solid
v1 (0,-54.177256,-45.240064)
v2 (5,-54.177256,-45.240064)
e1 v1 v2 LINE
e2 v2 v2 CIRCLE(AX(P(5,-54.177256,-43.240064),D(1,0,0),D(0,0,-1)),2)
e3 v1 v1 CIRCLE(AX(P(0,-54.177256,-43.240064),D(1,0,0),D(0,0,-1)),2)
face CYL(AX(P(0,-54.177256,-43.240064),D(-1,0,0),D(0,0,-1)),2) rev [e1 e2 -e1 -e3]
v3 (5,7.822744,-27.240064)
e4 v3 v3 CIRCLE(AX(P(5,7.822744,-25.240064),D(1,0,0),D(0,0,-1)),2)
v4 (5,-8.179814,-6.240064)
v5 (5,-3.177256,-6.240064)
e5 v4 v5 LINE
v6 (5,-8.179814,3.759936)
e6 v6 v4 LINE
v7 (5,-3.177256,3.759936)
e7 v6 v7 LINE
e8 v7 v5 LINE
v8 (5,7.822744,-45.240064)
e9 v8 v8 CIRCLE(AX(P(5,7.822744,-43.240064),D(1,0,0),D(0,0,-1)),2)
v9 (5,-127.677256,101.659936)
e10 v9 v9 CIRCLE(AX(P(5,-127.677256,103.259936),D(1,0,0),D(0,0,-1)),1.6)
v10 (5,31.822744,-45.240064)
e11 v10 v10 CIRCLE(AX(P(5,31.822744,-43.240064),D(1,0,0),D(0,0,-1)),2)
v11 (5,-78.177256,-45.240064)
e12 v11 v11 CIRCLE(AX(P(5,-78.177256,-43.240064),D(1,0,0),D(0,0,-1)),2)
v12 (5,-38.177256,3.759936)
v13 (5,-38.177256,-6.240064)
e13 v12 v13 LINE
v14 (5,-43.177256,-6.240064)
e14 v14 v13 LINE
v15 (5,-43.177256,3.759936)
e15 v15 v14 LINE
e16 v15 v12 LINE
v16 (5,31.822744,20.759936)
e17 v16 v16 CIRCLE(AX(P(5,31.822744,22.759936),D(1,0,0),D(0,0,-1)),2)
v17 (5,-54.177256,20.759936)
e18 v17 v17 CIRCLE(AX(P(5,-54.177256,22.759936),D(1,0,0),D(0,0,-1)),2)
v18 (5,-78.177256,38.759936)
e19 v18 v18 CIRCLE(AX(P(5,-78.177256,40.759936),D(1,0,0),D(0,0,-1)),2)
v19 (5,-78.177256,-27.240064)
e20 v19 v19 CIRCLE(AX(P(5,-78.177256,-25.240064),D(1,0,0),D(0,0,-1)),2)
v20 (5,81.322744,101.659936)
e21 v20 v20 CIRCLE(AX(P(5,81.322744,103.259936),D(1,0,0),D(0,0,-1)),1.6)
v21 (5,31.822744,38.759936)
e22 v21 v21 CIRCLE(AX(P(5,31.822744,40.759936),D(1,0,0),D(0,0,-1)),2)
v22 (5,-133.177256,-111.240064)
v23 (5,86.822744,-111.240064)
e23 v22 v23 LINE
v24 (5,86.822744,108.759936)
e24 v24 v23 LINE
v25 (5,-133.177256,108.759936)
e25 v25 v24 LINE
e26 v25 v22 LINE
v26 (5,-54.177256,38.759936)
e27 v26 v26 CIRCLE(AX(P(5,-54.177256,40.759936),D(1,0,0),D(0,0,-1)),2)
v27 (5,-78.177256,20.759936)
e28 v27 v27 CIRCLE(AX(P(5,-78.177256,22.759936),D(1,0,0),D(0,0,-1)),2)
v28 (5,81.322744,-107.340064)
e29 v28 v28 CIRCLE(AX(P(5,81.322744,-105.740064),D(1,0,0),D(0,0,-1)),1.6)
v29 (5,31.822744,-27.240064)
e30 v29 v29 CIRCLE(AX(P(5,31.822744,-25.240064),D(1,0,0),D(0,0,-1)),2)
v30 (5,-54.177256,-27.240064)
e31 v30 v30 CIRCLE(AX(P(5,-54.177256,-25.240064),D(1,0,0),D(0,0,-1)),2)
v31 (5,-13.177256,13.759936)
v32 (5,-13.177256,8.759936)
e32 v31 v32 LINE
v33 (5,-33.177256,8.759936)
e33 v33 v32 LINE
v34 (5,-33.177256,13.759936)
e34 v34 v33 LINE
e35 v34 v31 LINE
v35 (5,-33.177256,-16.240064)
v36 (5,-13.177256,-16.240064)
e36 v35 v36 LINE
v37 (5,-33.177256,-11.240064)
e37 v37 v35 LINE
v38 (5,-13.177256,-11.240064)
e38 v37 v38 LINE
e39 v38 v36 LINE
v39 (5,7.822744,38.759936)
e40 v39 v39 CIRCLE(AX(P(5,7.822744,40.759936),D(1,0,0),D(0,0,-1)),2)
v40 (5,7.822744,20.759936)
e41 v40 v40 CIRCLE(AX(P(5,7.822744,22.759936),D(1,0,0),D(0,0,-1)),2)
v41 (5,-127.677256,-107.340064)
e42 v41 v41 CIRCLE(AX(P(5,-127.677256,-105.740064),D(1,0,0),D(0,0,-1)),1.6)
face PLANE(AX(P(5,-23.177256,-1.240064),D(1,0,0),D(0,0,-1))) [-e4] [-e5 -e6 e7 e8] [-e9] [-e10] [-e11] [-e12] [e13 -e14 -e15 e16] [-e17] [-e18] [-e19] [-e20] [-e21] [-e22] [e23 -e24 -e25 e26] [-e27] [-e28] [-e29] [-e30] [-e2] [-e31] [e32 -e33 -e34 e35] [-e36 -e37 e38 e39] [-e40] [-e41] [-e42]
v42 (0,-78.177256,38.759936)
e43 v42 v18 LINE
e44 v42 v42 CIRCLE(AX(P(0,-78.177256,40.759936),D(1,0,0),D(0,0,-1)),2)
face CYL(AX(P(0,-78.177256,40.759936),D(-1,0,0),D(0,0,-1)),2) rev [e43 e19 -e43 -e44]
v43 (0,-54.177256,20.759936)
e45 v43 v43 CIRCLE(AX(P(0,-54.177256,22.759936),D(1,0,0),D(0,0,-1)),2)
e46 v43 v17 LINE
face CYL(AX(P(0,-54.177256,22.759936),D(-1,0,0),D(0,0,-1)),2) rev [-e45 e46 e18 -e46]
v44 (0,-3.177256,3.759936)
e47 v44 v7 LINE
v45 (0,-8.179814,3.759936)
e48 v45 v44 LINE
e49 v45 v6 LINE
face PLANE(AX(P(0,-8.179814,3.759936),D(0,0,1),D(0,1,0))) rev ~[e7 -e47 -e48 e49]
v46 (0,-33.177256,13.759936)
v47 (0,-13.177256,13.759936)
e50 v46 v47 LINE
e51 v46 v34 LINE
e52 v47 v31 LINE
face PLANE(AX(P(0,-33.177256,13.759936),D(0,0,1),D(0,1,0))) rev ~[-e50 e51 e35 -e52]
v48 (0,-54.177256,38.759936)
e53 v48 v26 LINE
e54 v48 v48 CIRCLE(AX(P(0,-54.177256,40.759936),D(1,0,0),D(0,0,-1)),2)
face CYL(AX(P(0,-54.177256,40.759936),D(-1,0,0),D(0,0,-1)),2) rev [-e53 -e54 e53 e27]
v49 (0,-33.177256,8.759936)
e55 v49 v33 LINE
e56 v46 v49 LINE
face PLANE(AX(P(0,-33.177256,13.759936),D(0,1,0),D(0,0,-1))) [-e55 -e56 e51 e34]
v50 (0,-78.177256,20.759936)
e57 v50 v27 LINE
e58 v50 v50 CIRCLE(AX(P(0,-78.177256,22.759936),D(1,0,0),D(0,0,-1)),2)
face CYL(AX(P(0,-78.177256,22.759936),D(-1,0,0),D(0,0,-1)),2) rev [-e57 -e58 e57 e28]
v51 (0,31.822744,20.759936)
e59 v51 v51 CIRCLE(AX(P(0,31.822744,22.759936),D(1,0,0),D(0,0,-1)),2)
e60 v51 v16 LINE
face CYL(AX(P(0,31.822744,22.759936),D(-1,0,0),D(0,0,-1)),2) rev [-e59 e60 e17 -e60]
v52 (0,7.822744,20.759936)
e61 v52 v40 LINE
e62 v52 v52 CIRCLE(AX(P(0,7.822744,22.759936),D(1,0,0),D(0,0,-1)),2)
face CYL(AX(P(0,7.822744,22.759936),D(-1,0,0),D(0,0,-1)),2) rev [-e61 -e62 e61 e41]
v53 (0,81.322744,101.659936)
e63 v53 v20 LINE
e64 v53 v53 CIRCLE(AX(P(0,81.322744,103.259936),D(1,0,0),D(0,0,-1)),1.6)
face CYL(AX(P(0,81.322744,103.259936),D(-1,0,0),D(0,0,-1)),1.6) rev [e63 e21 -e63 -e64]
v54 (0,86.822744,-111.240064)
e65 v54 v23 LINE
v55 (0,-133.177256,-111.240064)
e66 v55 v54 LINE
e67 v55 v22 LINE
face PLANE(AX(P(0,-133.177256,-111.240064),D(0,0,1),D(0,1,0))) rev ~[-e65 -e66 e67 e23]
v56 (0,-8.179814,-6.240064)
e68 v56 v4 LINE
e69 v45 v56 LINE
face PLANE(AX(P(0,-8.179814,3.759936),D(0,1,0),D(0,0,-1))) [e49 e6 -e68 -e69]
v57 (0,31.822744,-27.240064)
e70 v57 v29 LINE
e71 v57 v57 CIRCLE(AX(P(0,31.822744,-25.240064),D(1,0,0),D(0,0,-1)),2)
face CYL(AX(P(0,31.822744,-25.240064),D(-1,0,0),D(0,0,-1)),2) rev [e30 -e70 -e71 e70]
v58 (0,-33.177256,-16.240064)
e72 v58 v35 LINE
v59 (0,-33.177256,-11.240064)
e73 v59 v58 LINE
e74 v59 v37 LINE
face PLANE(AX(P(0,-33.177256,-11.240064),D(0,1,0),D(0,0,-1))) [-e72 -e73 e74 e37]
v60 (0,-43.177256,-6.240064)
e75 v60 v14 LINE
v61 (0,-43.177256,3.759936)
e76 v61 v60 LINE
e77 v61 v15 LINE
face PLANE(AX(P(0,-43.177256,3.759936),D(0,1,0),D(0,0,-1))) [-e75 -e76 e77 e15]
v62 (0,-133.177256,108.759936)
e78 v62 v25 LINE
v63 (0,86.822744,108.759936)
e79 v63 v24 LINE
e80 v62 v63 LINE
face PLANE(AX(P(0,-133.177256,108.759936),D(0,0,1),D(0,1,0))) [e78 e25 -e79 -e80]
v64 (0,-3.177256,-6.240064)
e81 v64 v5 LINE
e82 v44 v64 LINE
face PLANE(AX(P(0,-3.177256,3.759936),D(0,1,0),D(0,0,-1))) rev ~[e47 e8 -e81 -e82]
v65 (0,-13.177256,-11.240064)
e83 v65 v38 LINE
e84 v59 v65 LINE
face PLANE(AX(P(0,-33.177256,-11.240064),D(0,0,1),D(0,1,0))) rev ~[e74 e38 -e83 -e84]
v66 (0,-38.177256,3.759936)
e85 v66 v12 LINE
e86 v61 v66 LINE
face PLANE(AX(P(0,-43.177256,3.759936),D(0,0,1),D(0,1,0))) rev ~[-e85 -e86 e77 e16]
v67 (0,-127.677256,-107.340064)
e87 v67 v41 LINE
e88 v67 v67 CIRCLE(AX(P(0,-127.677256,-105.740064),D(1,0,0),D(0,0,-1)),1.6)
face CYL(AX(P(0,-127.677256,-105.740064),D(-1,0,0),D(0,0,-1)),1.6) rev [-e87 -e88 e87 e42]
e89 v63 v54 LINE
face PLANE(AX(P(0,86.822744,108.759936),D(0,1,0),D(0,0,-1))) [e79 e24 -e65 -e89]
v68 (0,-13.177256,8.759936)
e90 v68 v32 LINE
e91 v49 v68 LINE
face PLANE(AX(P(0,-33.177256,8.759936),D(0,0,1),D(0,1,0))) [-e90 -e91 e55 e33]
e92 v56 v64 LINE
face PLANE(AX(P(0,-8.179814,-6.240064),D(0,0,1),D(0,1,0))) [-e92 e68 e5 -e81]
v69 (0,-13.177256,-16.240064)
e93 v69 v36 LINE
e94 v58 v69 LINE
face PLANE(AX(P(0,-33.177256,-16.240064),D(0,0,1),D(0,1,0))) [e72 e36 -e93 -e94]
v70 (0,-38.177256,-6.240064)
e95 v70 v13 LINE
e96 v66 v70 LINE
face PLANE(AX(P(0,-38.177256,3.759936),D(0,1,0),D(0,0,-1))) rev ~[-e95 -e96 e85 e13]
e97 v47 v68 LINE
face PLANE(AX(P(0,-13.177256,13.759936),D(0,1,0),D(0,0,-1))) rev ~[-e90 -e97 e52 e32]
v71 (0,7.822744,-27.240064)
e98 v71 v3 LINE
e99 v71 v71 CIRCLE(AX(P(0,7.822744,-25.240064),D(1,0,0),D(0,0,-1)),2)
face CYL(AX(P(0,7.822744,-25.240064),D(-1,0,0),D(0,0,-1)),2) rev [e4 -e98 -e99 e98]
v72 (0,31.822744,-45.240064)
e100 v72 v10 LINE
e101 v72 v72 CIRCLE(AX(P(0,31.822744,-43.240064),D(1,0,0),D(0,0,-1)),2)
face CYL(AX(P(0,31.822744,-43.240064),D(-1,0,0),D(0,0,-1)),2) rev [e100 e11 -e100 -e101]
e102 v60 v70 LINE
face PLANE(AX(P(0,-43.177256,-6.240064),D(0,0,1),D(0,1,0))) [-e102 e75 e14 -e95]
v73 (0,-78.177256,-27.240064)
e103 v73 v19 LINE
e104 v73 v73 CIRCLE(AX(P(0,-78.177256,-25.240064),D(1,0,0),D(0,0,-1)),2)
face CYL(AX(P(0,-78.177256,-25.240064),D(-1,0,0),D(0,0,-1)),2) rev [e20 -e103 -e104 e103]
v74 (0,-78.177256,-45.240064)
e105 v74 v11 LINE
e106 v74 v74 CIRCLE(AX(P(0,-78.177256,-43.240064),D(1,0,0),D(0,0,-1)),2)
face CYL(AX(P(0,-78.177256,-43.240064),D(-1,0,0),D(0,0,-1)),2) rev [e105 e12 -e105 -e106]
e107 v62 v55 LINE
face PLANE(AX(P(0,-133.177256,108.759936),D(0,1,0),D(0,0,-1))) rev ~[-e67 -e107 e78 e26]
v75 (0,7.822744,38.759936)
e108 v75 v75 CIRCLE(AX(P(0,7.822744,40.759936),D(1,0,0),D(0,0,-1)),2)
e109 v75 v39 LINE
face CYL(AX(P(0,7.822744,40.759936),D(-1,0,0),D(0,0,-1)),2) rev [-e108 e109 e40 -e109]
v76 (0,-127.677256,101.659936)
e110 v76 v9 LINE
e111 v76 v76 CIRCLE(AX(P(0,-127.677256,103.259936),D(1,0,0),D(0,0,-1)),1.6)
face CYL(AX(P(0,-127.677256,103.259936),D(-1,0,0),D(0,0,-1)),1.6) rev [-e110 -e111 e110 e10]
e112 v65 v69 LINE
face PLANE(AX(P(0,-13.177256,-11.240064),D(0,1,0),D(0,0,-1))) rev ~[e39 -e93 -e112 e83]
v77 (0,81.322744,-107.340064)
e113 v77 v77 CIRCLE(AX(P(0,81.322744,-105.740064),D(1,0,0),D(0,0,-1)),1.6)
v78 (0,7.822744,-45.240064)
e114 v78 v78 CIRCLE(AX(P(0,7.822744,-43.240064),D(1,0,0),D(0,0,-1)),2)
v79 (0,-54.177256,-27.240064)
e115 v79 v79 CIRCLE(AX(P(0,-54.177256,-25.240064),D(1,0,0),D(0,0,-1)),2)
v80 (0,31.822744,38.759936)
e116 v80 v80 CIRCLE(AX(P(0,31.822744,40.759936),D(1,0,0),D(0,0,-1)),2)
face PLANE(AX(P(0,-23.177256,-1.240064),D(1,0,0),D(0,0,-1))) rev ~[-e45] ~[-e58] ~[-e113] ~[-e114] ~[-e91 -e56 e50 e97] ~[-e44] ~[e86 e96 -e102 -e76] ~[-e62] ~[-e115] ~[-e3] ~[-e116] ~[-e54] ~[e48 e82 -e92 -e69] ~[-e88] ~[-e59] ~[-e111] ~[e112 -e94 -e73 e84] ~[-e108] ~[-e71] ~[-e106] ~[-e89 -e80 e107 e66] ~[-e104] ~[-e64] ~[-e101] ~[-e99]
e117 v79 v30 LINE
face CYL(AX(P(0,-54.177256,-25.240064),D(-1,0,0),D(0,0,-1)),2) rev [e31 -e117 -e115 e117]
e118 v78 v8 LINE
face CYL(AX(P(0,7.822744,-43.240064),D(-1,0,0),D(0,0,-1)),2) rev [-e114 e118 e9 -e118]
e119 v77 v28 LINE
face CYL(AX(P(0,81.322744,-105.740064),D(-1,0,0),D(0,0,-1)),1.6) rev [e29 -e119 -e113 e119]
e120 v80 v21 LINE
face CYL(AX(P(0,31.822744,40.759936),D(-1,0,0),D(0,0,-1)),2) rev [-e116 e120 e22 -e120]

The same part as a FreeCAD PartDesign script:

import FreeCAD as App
import Part
import Sketcher

V = App.Vector

doc = App.newDocument("Part")
body = doc.addObject("PartDesign::Body", "Body")

sketch1 = body.newObject("Sketcher::SketchObject", "Sketch")
sketch1.AttachmentSupport = (doc.getObject("YZ_Plane"), [""])
sketch1.MapMode = "FlatFace"
sketch1.addGeometry([
    Part.LineSegment(V(86.8, 108.8, 0), V(-133.2, 108.8, 0)),
    Part.LineSegment(V(-133.2, 108.8, 0), V(-133.2, -111.2, 0)),
    Part.LineSegment(V(-133.2, -111.2, 0), V(86.8, -111.2, 0)),
    Part.LineSegment(V(86.8, -111.2, 0), V(86.8, 108.8, 0)),
    Part.Circle(V(-127.7, 103.3, 0), V(0, 0, 1), 1.6),
    Part.Circle(V(-78.2, 40.8, 0), V(0, 0, 1), 2),
    Part.Circle(V(-78.2, 22.8, 0), V(0, 0, 1), 2),
    Part.Circle(V(-54.2, 40.8, 0), V(0, 0, 1), 2),
    Part.Circle(V(-54.2, 22.8, 0), V(0, 0, 1), 2),
    Part.Circle(V(-78.2, -25.2, 0), V(0, 0, 1), 2),
    Part.Circle(V(-78.2, -43.2, 0), V(0, 0, 1), 2),
    Part.Circle(V(-127.7, -105.7, 0), V(0, 0, 1), 1.6),
    Part.Circle(V(-54.2, -25.2, 0), V(0, 0, 1), 2),
    Part.Circle(V(-54.2, -43.2, 0), V(0, 0, 1), 2),
    Part.LineSegment(V(-43.2, -6.2, 0), V(-43.2, 3.8, 0)),
    Part.LineSegment(V(-43.2, 3.8, 0), V(-38.2, 3.8, 0)),
    Part.LineSegment(V(-38.2, 3.8, 0), V(-38.2, -6.2, 0)),
    Part.LineSegment(V(-38.2, -6.2, 0), V(-43.2, -6.2, 0)),
    Part.LineSegment(V(-33.2, 8.8, 0), V(-33.2, 13.8, 0)),
    Part.LineSegment(V(-33.2, 13.8, 0), V(-13.2, 13.8, 0)),
    Part.LineSegment(V(-13.2, 13.8, 0), V(-13.2, 8.8, 0)),
    Part.LineSegment(V(-13.2, 8.8, 0), V(-33.2, 8.8, 0)),
    Part.Circle(V(7.8, 40.8, 0), V(0, 0, 1), 2),
    Part.Circle(V(7.8, 22.8, 0), V(0, 0, 1), 2),
    Part.Circle(V(81.3, 103.3, 0), V(0, 0, 1), 1.6),
    Part.Circle(V(31.8, 40.8, 0), V(0, 0, 1), 2),
    Part.Circle(V(31.8, 22.8, 0), V(0, 0, 1), 2),
    Part.LineSegment(V(-33.2, -16.2, 0), V(-33.2, -11.2, 0)),
    Part.LineSegment(V(-33.2, -11.2, 0), V(-13.2, -11.2, 0)),
    Part.LineSegment(V(-13.2, -11.2, 0), V(-13.2, -16.2, 0)),
    Part.LineSegment(V(-13.2, -16.2, 0), V(-33.2, -16.2, 0)),
    Part.LineSegment(V(-8.2, -6.2, 0), V(-8.2, 3.8, 0)),
    Part.LineSegment(V(-8.2, 3.8, 0), V(-3.2, 3.8, 0)),
    Part.LineSegment(V(-3.2, 3.8, 0), V(-3.2, -6.2, 0)),
    Part.LineSegment(V(-3.2, -6.2, 0), V(-8.2, -6.2, 0)),
    Part.Circle(V(7.8, -25.2, 0), V(0, 0, 1), 2),
    Part.Circle(V(7.8, -43.2, 0), V(0, 0, 1), 2),
    Part.Circle(V(31.8, -25.2, 0), V(0, 0, 1), 2),
    Part.Circle(V(31.8, -43.2, 0), V(0, 0, 1), 2),
    Part.Circle(V(81.3, -105.7, 0), V(0, 0, 1), 1.6),
], False)
sketch1.addConstraint([
    Sketcher.Constraint("Coincident", 0, 2, 1, 1),
    Sketcher.Constraint("Coincident", 1, 2, 2, 1),
    Sketcher.Constraint("Coincident", 2, 2, 3, 1),
    Sketcher.Constraint("Coincident", 3, 2, 0, 1),
    Sketcher.Constraint("Coincident", 14, 2, 15, 1),
    Sketcher.Constraint("Coincident", 15, 2, 16, 1),
    Sketcher.Constraint("Coincident", 16, 2, 17, 1),
    Sketcher.Constraint("Coincident", 17, 2, 14, 1),
    Sketcher.Constraint("Coincident", 18, 2, 19, 1),
    Sketcher.Constraint("Coincident", 19, 2, 20, 1),
    Sketcher.Constraint("Coincident", 20, 2, 21, 1),
    Sketcher.Constraint("Coincident", 21, 2, 18, 1),
    Sketcher.Constraint("Coincident", 27, 2, 28, 1),
    Sketcher.Constraint("Coincident", 28, 2, 29, 1),
    Sketcher.Constraint("Coincident", 29, 2, 30, 1),
    Sketcher.Constraint("Coincident", 30, 2, 27, 1),
    Sketcher.Constraint("Coincident", 31, 2, 32, 1),
    Sketcher.Constraint("Coincident", 32, 2, 33, 1),
    Sketcher.Constraint("Coincident", 33, 2, 34, 1),
    Sketcher.Constraint("Coincident", 34, 2, 31, 1),
    Sketcher.Constraint("Horizontal", 0),
    Sketcher.Constraint("Vertical", 1),
    Sketcher.Constraint("Horizontal", 2),
    Sketcher.Constraint("Vertical", 3),
    Sketcher.Constraint("Vertical", 14),
    Sketcher.Constraint("Horizontal", 15),
    Sketcher.Constraint("Vertical", 16),
    Sketcher.Constraint("Horizontal", 17),
    Sketcher.Constraint("Vertical", 18),
    Sketcher.Constraint("Horizontal", 19),
    Sketcher.Constraint("Vertical", 20),
    Sketcher.Constraint("Horizontal", 21),
    Sketcher.Constraint("Vertical", 27),
    Sketcher.Constraint("Horizontal", 28),
    Sketcher.Constraint("Vertical", 29),
    Sketcher.Constraint("Horizontal", 30),
    Sketcher.Constraint("Vertical", 31),
    Sketcher.Constraint("Horizontal", 32),
    Sketcher.Constraint("Vertical", 33),
    Sketcher.Constraint("Horizontal", 34),
    Sketcher.Constraint("Equal", 5, 6),
    Sketcher.Constraint("Equal", 6, 7),
    Sketcher.Constraint("Equal", 7, 8),
    Sketcher.Constraint("Equal", 8, 9),
    Sketcher.Constraint("Equal", 9, 10),
    Sketcher.Constraint("Equal", 4, 11),
    Sketcher.Constraint("Equal", 10, 12),
    Sketcher.Constraint("Equal", 12, 13),
    Sketcher.Constraint("Equal", 13, 22),
    Sketcher.Constraint("Equal", 22, 23),
    Sketcher.Constraint("Equal", 11, 24),
    Sketcher.Constraint("Equal", 23, 25),
    Sketcher.Constraint("Equal", 25, 26),
    Sketcher.Constraint("Equal", 26, 35),
    Sketcher.Constraint("Equal", 35, 36),
    Sketcher.Constraint("Equal", 36, 37),
    Sketcher.Constraint("Equal", 37, 38),
    Sketcher.Constraint("Equal", 24, 39),
    Sketcher.Constraint("Horizontal", 5, 3, 7, 3),
    Sketcher.Constraint("Horizontal", 6, 3, 8, 3),
    Sketcher.Constraint("Horizontal", 9, 3, 12, 3),
    Sketcher.Constraint("Horizontal", 10, 3, 13, 3),
    Sketcher.Constraint("Horizontal", 7, 3, 22, 3),
    Sketcher.Constraint("Horizontal", 8, 3, 23, 3),
    Sketcher.Constraint("Horizontal", 4, 3, 24, 3),
    Sketcher.Constraint("Horizontal", 22, 3, 25, 3),
    Sketcher.Constraint("Horizontal", 23, 3, 26, 3),
    Sketcher.Constraint("Horizontal", 12, 3, 35, 3),
    Sketcher.Constraint("Horizontal", 13, 3, 36, 3),
    Sketcher.Constraint("Horizontal", 35, 3, 37, 3),
    Sketcher.Constraint("Horizontal", 36, 3, 38, 3),
    Sketcher.Constraint("Horizontal", 11, 3, 39, 3),
    Sketcher.Constraint("Horizontal", 15, 2, 31, 2),
    Sketcher.Constraint("Horizontal", 17, 2, 33, 2),
    Sketcher.Constraint("Vertical", 5, 3, 6, 3),
    Sketcher.Constraint("Vertical", 7, 3, 8, 3),
    Sketcher.Constraint("Vertical", 6, 3, 9, 3),
    Sketcher.Constraint("Vertical", 9, 3, 10, 3),
    Sketcher.Constraint("Vertical", 4, 3, 11, 3),
    Sketcher.Constraint("Vertical", 8, 3, 12, 3),
    Sketcher.Constraint("Vertical", 12, 3, 13, 3),
    Sketcher.Constraint("Vertical", 22, 3, 23, 3),
    Sketcher.Constraint("Vertical", 25, 3, 26, 3),
    Sketcher.Constraint("Vertical", 23, 3, 35, 3),
    Sketcher.Constraint("Vertical", 35, 3, 36, 3),
    Sketcher.Constraint("Vertical", 26, 3, 37, 3),
    Sketcher.Constraint("Vertical", 37, 3, 38, 3),
    Sketcher.Constraint("Vertical", 24, 3, 39, 3),
    Sketcher.Constraint("Vertical", 21, 2, 27, 2),
    Sketcher.Constraint("Vertical", 20, 2, 28, 2),
    Sketcher.Constraint("Equal", 2, 1),
    Sketcher.Constraint("Equal", 17, 18),
    Sketcher.Constraint("Equal", 20, 27),
    Sketcher.Constraint("Diameter", 5, 4.0),
    Sketcher.Constraint("Diameter", 4, 3.2),
    Sketcher.Constraint("DistanceX", 0, 2, 0, 1, 220.0),
    Sketcher.Constraint("DistanceX", 15, 1, 15, 2, 5.0),
    Sketcher.Constraint("DistanceX", 19, 1, 19, 2, 20.0),
    Sketcher.Constraint("DistanceY", 14, 1, 14, 2, 10.0),
    Sketcher.Constraint("DistanceY", 6, 3, 5, 3, 18.0),
    Sketcher.Constraint("DistanceX", 5, 3, 7, 3, 24.0),
    Sketcher.Constraint("DistanceY", 9, 3, 6, 3, 48.0),
    Sketcher.Constraint("DistanceY", 10, 3, 9, 3, 18.0),
    Sketcher.Constraint("DistanceX", 7, 3, 22, 3, 62.0),
    Sketcher.Constraint("DistanceX", 22, 3, 25, 3, 24.0),
    Sketcher.Constraint("DistanceX", 0, 2, 5, 3, 55.0),
    Sketcher.Constraint("DistanceY", 5, 3, 0, 2, 68.0),
    Sketcher.Constraint("DistanceX", 8, 3, 14, 2, 11.0),
    Sketcher.Constraint("DistanceY", 14, 2, 8, 3, 19.0),
    Sketcher.Constraint("DistanceX", 15, 2, 18, 2, 5.0),
    Sketcher.Constraint("DistanceY", 15, 2, 18, 2, 10.0),
    Sketcher.Constraint("DistanceY", 27, 2, 16, 2, 5.0),
    Sketcher.Constraint("DistanceX", 20, 2, 32, 2, 10.0),
    Sketcher.Constraint("DistanceX", 4, 3, 5, 3, 49.5),
    Sketcher.Constraint("DistanceY", 5, 3, 4, 3, 62.5),
    Sketcher.Constraint("DistanceY", 11, 3, 10, 3, 62.5),
    Sketcher.Constraint("DistanceX", 22, 3, 24, 3, 73.5),
    Sketcher.Constraint("DistanceX", 32, 1, 32, 2, 5.002558),
    Sketcher.Constraint("DistanceX", 4, 3, -1, 1, 127.677256),
    Sketcher.Constraint("DistanceY", -1, 1, 4, 3, 103.259936),
])
pad1 = body.newObject("PartDesign::Pad", "Pad")
pad1.Profile = sketch1
pad1.Length = 5

doc.recompute()
